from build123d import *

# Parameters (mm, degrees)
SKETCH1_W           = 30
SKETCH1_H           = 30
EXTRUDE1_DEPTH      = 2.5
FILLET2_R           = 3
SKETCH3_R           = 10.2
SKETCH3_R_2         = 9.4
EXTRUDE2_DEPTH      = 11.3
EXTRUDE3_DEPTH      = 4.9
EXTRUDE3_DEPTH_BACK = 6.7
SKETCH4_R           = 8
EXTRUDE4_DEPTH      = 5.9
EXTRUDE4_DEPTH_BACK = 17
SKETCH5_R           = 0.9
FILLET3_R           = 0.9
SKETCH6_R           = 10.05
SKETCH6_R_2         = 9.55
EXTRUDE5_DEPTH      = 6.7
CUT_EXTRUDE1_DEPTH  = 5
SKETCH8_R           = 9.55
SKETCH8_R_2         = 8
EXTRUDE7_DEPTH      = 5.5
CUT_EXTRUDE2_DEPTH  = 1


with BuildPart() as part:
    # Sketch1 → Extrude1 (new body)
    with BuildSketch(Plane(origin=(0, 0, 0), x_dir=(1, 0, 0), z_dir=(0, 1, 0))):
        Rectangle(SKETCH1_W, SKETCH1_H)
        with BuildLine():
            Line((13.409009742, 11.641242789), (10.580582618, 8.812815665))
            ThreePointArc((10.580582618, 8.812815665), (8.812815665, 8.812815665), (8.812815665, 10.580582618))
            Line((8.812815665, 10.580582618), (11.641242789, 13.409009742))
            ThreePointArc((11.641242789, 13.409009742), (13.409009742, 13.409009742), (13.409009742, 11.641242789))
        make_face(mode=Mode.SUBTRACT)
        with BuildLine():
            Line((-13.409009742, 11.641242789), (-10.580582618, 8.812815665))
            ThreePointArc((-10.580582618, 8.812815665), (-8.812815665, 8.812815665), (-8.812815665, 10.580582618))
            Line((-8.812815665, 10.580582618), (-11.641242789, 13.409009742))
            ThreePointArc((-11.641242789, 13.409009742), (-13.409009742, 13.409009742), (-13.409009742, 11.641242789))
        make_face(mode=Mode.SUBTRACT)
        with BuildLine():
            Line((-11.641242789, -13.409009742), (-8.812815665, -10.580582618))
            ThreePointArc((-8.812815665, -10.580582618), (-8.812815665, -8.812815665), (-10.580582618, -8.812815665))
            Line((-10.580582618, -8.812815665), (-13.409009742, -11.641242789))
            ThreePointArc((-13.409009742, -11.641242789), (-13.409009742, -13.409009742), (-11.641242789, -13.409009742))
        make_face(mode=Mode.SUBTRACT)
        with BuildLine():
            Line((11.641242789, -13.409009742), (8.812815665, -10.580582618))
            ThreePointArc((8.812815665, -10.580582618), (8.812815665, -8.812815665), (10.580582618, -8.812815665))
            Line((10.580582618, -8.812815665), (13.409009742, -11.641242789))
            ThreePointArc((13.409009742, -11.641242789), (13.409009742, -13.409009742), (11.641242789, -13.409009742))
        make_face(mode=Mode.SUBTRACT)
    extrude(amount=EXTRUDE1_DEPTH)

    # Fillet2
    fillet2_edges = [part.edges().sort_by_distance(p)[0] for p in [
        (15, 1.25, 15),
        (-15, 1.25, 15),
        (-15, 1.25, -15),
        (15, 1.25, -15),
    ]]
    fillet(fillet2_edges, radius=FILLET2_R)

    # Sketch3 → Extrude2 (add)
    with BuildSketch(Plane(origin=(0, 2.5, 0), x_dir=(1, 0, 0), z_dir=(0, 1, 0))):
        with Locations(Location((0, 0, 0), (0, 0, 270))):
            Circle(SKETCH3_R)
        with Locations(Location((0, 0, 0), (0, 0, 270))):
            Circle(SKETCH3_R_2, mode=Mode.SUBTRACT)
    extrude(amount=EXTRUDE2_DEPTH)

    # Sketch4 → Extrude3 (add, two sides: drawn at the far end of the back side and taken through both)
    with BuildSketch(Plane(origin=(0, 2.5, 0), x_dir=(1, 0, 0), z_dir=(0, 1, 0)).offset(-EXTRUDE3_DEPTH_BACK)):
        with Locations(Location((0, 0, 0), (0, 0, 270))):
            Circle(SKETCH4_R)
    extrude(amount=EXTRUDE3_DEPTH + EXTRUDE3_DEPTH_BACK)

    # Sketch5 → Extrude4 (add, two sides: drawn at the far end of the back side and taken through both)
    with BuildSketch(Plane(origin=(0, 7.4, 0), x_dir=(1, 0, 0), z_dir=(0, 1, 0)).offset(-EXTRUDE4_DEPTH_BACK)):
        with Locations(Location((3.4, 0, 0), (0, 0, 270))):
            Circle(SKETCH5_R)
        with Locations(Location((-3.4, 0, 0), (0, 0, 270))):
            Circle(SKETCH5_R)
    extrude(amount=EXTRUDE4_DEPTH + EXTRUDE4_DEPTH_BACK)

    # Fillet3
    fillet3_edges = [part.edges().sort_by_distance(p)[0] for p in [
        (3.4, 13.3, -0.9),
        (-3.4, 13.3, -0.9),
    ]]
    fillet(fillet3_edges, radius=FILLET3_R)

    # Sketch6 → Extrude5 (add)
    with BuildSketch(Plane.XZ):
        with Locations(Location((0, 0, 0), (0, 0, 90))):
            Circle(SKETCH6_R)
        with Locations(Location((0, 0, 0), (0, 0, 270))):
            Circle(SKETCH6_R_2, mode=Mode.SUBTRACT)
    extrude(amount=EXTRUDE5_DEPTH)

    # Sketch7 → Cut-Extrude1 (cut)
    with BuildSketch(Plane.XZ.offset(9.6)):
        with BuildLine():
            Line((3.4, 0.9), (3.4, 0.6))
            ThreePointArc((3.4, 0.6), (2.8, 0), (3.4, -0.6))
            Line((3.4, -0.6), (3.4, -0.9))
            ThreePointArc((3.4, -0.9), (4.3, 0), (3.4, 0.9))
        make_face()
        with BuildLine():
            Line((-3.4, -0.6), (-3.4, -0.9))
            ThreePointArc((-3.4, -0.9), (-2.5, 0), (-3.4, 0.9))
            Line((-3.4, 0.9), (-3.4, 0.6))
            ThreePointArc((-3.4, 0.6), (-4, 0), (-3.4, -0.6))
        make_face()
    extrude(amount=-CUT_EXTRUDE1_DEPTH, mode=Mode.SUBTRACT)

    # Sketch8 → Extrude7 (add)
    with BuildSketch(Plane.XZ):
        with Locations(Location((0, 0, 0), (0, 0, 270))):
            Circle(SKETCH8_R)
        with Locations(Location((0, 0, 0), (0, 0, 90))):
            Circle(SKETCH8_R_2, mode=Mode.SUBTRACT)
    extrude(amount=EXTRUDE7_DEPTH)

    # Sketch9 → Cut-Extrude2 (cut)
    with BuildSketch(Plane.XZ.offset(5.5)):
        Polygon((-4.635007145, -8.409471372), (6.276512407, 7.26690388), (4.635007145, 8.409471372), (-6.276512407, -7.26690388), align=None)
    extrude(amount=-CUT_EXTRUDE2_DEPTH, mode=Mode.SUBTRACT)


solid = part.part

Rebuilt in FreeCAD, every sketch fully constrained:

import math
import FreeCAD as App
import Part
import Sketcher
Q = App.Units.Quantity


def edges_at(feature, points):
    """Names of the edges that pass closest to the given points."""
    edges = feature.Shape.Edges
    near = lambda p: min(range(len(edges)), key=lambda i: edges[i].distToShape(Part.Vertex(*p))[0])
    return sorted({f"Edge{near(p) + 1}" for p in points})


def add_polygon(sketch, points):
    """Adds a closed chain of lines whose ends are joined by coincident constraints."""
    first, n = sketch.GeometryCount, len(points)
    for a, b in zip(points, points[1:] + points[:1]):
        sketch.addGeometry(Part.LineSegment(App.Vector(*a, 0), App.Vector(*b, 0)), False)
    for i in range(n):
        sketch.addConstraint(Sketcher.Constraint("Coincident", first + i, 2, first + (i + 1) % n, 1))

doc = App.newDocument("Part")
params = doc.addObject("Spreadsheet::Sheet", "Params")
for row, (alias, value) in enumerate([
    ("sketch1_width", "30 mm"),
    ("sketch1_radius", "1.25 mm"),
    ("sketch1_length", "4 mm"),
    ("pad1_length", "2.5 mm"),
    ("fillet_radius", "3 mm"),
    ("sketch2_diameter", "20.4 mm"),
    ("sketch2_diameter2", "18.8 mm"),
    ("pad2_length", "11.3 mm"),
    ("sketch3_diameter", "16 mm"),
    ("pad3_length", "4.9 mm"),
    ("pad3_length2", "6.7 mm"),
    ("sketch4_diameter", "1.8 mm"),
    ("pad4_length", "5.9 mm"),
    ("pad4_length2", "17 mm"),
    ("fillet2_radius", "0.9 mm"),
    ("sketch5_diameter", "20.1 mm"),
    ("sketch5_diameter2", "19.1 mm"),
    ("pad5_length", "6.7 mm"),
    ("sketch6_radius", "0.6 mm"),
    ("sketch6_radius2", "0.9 mm"),
    ("pocket1_length", "5 mm"),
    ("sketch7_diameter", "16 mm"),
    ("sketch7_diameter2", "19.1 mm"),
    ("pad6_length", "5.5 mm"),
    ("sketch8_length", "2 mm"),
    ("sketch8_length2", "19.1 mm"),
    ("pocket2_length", "1 mm"),
], start=1):
    params.set(f"A{row}", alias)
    params.set(f"B{row}", "=" + value)
    params.setAlias(f"B{row}", alias)

body = doc.addObject("PartDesign::Body", "Body")

sketch1 = body.newObject("Sketcher::SketchObject", "Sketch")
sketch1.AttachmentSupport = (doc.getObject("XZ_Plane"), [""])
sketch1.MapMode = "FlatFace"
add_polygon(sketch1, [(-15, -15), (-15, 15), (15, 15), (15, -15)])
sketch1.addGeometry(Part.LineSegment(App.Vector(-8.812816, 10.580583, 0), App.Vector(-11.641243, 13.40901, 0)), False)
sketch1.addGeometry(Part.ArcOfCircle(Part.Circle(App.Vector(-12.525126, 12.525126, 0), App.Vector(0, 0, 1), 1.25), math.radians(45), math.radians(225)), False)
sketch1.addGeometry(Part.LineSegment(App.Vector(-13.40901, 11.641243, 0), App.Vector(-10.580583, 8.812816, 0)), False)
sketch1.addGeometry(Part.ArcOfCircle(Part.Circle(App.Vector(-9.696699, 9.696699, 0), App.Vector(0, 0, 1), 1.25), math.radians(-135), math.radians(45)), False)
sketch1.addGeometry(Part.ArcOfCircle(Part.Circle(App.Vector(12.525126, 12.525126, 0), App.Vector(0, 0, 1), 1.25), math.radians(-45), math.radians(135)), False)
sketch1.addGeometry(Part.LineSegment(App.Vector(11.641243, 13.40901, 0), App.Vector(8.812816, 10.580583, 0)), False)
sketch1.addGeometry(Part.ArcOfCircle(Part.Circle(App.Vector(9.696699, 9.696699, 0), App.Vector(0, 0, 1), 1.25), math.radians(135), math.radians(315)), False)
sketch1.addGeometry(Part.LineSegment(App.Vector(10.580583, 8.812816, 0), App.Vector(13.40901, 11.641243, 0)), False)
sketch1.addGeometry(Part.LineSegment(App.Vector(-10.580583, -8.812816, 0), App.Vector(-13.40901, -11.641243, 0)), False)
sketch1.addGeometry(Part.ArcOfCircle(Part.Circle(App.Vector(-12.525126, -12.525126, 0), App.Vector(0, 0, 1), 1.25), math.radians(135), math.radians(315)), False)
sketch1.addGeometry(Part.LineSegment(App.Vector(-11.641243, -13.40901, 0), App.Vector(-8.812816, -10.580583, 0)), False)
sketch1.addGeometry(Part.ArcOfCircle(Part.Circle(App.Vector(-9.696699, -9.696699, 0), App.Vector(0, 0, 1), 1.25), math.radians(-45), math.radians(135)), False)
sketch1.addGeometry(Part.ArcOfCircle(Part.Circle(App.Vector(12.525126, -12.525126, 0), App.Vector(0, 0, 1), 1.25), math.radians(-135), math.radians(45)), False)
sketch1.addGeometry(Part.LineSegment(App.Vector(13.40901, -11.641243, 0), App.Vector(10.580583, -8.812816, 0)), False)
sketch1.addGeometry(Part.ArcOfCircle(Part.Circle(App.Vector(9.696699, -9.696699, 0), App.Vector(0, 0, 1), 1.25), math.radians(45), math.radians(225)), False)
sketch1.addGeometry(Part.LineSegment(App.Vector(8.812816, -10.580583, 0), App.Vector(11.641243, -13.40901, 0)), False)
sketch1.addConstraint([
    Sketcher.Constraint("Tangent", 4, 2, 5, 1),
    Sketcher.Constraint("Tangent", 5, 2, 6, 1),
    Sketcher.Constraint("Tangent", 6, 2, 7, 1),
    Sketcher.Constraint("Tangent", 7, 2, 4, 1),
    Sketcher.Constraint("Tangent", 8, 2, 9, 1),
    Sketcher.Constraint("Tangent", 9, 2, 10, 1),
    Sketcher.Constraint("Tangent", 10, 2, 11, 1),
    Sketcher.Constraint("Tangent", 11, 2, 8, 1),
    Sketcher.Constraint("Tangent", 12, 2, 13, 1),
    Sketcher.Constraint("Tangent", 13, 2, 14, 1),
    Sketcher.Constraint("Tangent", 14, 2, 15, 1),
    Sketcher.Constraint("Tangent", 15, 2, 12, 1),
    Sketcher.Constraint("Tangent", 16, 2, 17, 1),
    Sketcher.Constraint("Tangent", 17, 2, 18, 1),
    Sketcher.Constraint("Tangent", 18, 2, 19, 1),
    Sketcher.Constraint("Tangent", 19, 2, 16, 1),
    Sketcher.Constraint("Vertical", 0),
    Sketcher.Constraint("Horizontal", 1),
    Sketcher.Constraint("Vertical", 2),
    Sketcher.Constraint("Horizontal", 3),
    Sketcher.Constraint("Equal", 5, 7),
    Sketcher.Constraint("Equal", 7, 8),
    Sketcher.Constraint("Equal", 8, 10),
    Sketcher.Constraint("Equal", 10, 13),
    Sketcher.Constraint("Equal", 13, 15),
    Sketcher.Constraint("Equal", 15, 16),
    Sketcher.Constraint("Equal", 16, 18),
    Sketcher.Constraint("Symmetric", 8, 3, 13, 3, -1, 1),
    Sketcher.Constraint("Symmetric", 10, 3, 15, 3, -1, 1),
    Sketcher.Constraint("Symmetric", 5, 3, 16, 3, -1, 1),
    Sketcher.Constraint("Symmetric", 7, 3, 18, 3, -1, 1),
    Sketcher.Constraint("Symmetric", 0, 2, 2, 2, -1, 1),
    Sketcher.Constraint("Symmetric", 5, 3, 8, 3, -2),
    Sketcher.Constraint("Symmetric", 7, 3, 10, 3, -2),
    Sketcher.Constraint("Perpendicular", 6, 9),
    Sketcher.Constraint("Equal", 3, 0),
    Sketcher.Constraint("DistanceX", 1, 1, 1, 2, Q("30 mm")),
    Sketcher.Constraint("Radius", 5, Q("1.25 mm")),
    Sketcher.Constraint("Distance", 4, Q("4 mm")),
    Sketcher.Constraint("DistanceX", 7, 3, -1, 1, Q("9.696699 mm")),
    Sketcher.Constraint("DistanceY", -1, 1, 7, 3, Q("9.696699 mm")),
])
sketch1.setExpression("Constraints[40]", "Params.sketch1_width")
sketch1.setExpression("Constraints[41]", "Params.sketch1_radius")
sketch1.setExpression("Constraints[42]", "Params.sketch1_length")
pad1 = body.newObject("PartDesign::Pad", "Pad")
pad1.Profile = sketch1
pad1.setExpression("Length", "Params.pad1_length")
pad1.Reversed = True
doc.recompute()

fillet = body.newObject("PartDesign::Fillet", "Fillet")
fillet.Base = (pad1, edges_at(pad1, [
    (15, 1.25, 15),
    (-15, 1.25, 15),
    (-15, 1.25, -15),
    (15, 1.25, -15),
]))
fillet.setExpression("Radius", "Params.fillet_radius")

sketch2 = body.newObject("Sketcher::SketchObject", "Sketch001")
sketch2.AttachmentSupport = (doc.getObject("XZ_Plane"), [""])
sketch2.MapMode = "FlatFace"
sketch2.AttachmentOffset = App.Placement(App.Vector(0, 0, -2.5), App.Rotation())
sketch2.addGeometry([
    Part.Circle(App.Vector(0, 0, 0), App.Vector(0, 0, 1), 10.2),
    Part.Circle(App.Vector(0, 0, 0), App.Vector(0, 0, 1), 9.4),
], False)
sketch2.addConstraint([
    Sketcher.Constraint("Coincident", 0, 3, -1, 1),
    Sketcher.Constraint("Coincident", 1, 3, -1, 1),
    Sketcher.Constraint("Diameter", 0, Q("20.4 mm")),
    Sketcher.Constraint("Diameter", 1, Q("18.8 mm")),
])
sketch2.setExpression("Constraints[2]", "Params.sketch2_diameter")
sketch2.setExpression("Constraints[3]", "Params.sketch2_diameter2")
pad2 = body.newObject("PartDesign::Pad", "Pad001")
pad2.Profile = sketch2
pad2.setExpression("Length", "Params.pad2_length")
pad2.Reversed = True

sketch3 = body.newObject("Sketcher::SketchObject", "Sketch002")
sketch3.AttachmentSupport = (doc.getObject("XZ_Plane"), [""])
sketch3.MapMode = "FlatFace"
sketch3.AttachmentOffset = App.Placement(App.Vector(0, 0, -2.5), App.Rotation())
sketch3.addGeometry(Part.Circle(App.Vector(0, 0, 0), App.Vector(0, 0, 1), 8), False)
sketch3.addConstraint([
    Sketcher.Constraint("Coincident", 0, 3, -1, 1),
    Sketcher.Constraint("Diameter", 0, Q("16 mm")),
])
sketch3.setExpression("Constraints[1]", "Params.sketch3_diameter")
pad3 = body.newObject("PartDesign::Pad", "Pad002")
pad3.Profile = sketch3
pad3.Type = "TwoLengths"
pad3.setExpression("Length", "Params.pad3_length")
pad3.setExpression("Length2", "Params.pad3_length2")
pad3.Reversed = True

sketch4 = body.newObject("Sketcher::SketchObject", "Sketch003")
sketch4.AttachmentSupport = (doc.getObject("XZ_Plane"), [""])
sketch4.MapMode = "FlatFace"
sketch4.AttachmentOffset = App.Placement(App.Vector(0, 0, -7.4), App.Rotation())
sketch4.addGeometry([
    Part.Circle(App.Vector(3.4, 0, 0), App.Vector(0, 0, 1), 0.9),
    Part.Circle(App.Vector(-3.4, 0, 0), App.Vector(0, 0, 1), 0.9),
], False)
sketch4.addConstraint([
    Sketcher.Constraint("Equal", 0, 1),
    Sketcher.Constraint("Symmetric", 0, 3, 1, 3, -1, 1),
    Sketcher.Constraint("PointOnObject", 0, 3, -1),
    Sketcher.Constraint("Diameter", 0, Q("1.8 mm")),
    Sketcher.Constraint("DistanceX", -1, 1, 0, 3, Q("3.4 mm")),
])
sketch4.setExpression("Constraints[3]", "Params.sketch4_diameter")
pad4 = body.newObject("PartDesign::Pad", "Pad003")
pad4.Profile = sketch4
pad4.Type = "TwoLengths"
pad4.setExpression("Length", "Params.pad4_length")
pad4.setExpression("Length2", "Params.pad4_length2")
pad4.Reversed = True
doc.recompute()

fillet2 = body.newObject("PartDesign::Fillet", "Fillet001")
fillet2.Base = (pad4, edges_at(pad4, [(3.4, 13.3, -0.9), (-3.4, 13.3, -0.9)]))
fillet2.setExpression("Radius", "Params.fillet2_radius")

sketch5 = body.newObject("Sketcher::SketchObject", "Sketch004")
sketch5.AttachmentSupport = (doc.getObject("XZ_Plane"), [""])
sketch5.MapMode = "FlatFace"
sketch5.addGeometry([
    Part.Circle(App.Vector(0, 0, 0), App.Vector(0, 0, 1), 10.05),
    Part.Circle(App.Vector(0, 0, 0), App.Vector(0, 0, 1), 9.55),
], False)
sketch5.addConstraint([
    Sketcher.Constraint("Coincident", 0, 3, -1, 1),
    Sketcher.Constraint("Coincident", 1, 3, -1, 1),
    Sketcher.Constraint("Diameter", 0, Q("20.1 mm")),
    Sketcher.Constraint("Diameter", 1, Q("19.1 mm")),
])
sketch5.setExpression("Constraints[2]", "Params.sketch5_diameter")
sketch5.setExpression("Constraints[3]", "Params.sketch5_diameter2")
pad5 = body.newObject("PartDesign::Pad", "Pad004")
pad5.Profile = sketch5
pad5.setExpression("Length", "Params.pad5_length")

sketch6 = body.newObject("Sketcher::SketchObject", "Sketch005")
sketch6.AttachmentSupport = (doc.getObject("XZ_Plane"), [""])
sketch6.MapMode = "FlatFace"
sketch6.AttachmentOffset = App.Placement(App.Vector(0, 0, 9.6), App.Rotation())
sketch6.addGeometry([
    Part.LineSegment(App.Vector(3.4, 0.9, 0), App.Vector(3.4, 0.6, 0)),
    Part.ArcOfCircle(Part.Circle(App.Vector(3.4, 0, 0), App.Vector(0, 0, 1), 0.6), math.radians(90), math.radians(270)),
    Part.LineSegment(App.Vector(3.4, -0.6, 0), App.Vector(3.4, -0.9, 0)),
    Part.ArcOfCircle(Part.Circle(App.Vector(3.4, 0, 0), App.Vector(0, 0, 1), 0.9), math.radians(-90), math.radians(90)),
    Part.LineSegment(App.Vector(-3.4, -0.6, 0), App.Vector(-3.4, -0.9, 0)),
    Part.ArcOfCircle(Part.Circle(App.Vector(-3.4, 0, 0), App.Vector(0, 0, 1), 0.9), math.radians(-90), math.radians(90)),
    Part.LineSegment(App.Vector(-3.4, 0.9, 0), App.Vector(-3.4, 0.6, 0)),
    Part.ArcOfCircle(Part.Circle(App.Vector(-3.4, 0, 0), App.Vector(0, 0, 1), 0.6), math.radians(90), math.radians(270)),
], False)
sketch6.addConstraint([
    Sketcher.Constraint("Coincident", 0, 2, 1, 1),
    Sketcher.Constraint("Coincident", 1, 2, 2, 1),
    Sketcher.Constraint("Coincident", 2, 2, 3, 1),
    Sketcher.Constraint("Coincident", 3, 2, 0, 1),
    Sketcher.Constraint("Coincident", 4, 2, 5, 1),
    Sketcher.Constraint("Coincident", 5, 2, 6, 1),
    Sketcher.Constraint("Coincident", 6, 2, 7, 1),
    Sketcher.Constraint("Coincident", 7, 2, 4, 1),
    Sketcher.Constraint("Vertical", 0),
    Sketcher.Constraint("Vertical", 2),
    Sketcher.Constraint("Vertical", 4),
    Sketcher.Constraint("Vertical", 6),
    Sketcher.Constraint("Coincident", 3, 3, 1, 3),
    Sketcher.Constraint("Coincident", 7, 3, 5, 3),
    Sketcher.Constraint("Equal", 3, 5),
    Sketcher.Constraint("Equal", 1, 7),
    Sketcher.Constraint("Symmetric", 1, 3, 5, 3, -1, 1),
    Sketcher.Constraint("Symmetric", 2, 2, 4, 2, -2),
    Sketcher.Constraint("Vertical", 3, 3, 0, 2),
    Sketcher.Constraint("Vertical", 0, 2, 1, 2),
    Sketcher.Constraint("Vertical", 4, 2, 5, 2),
    Sketcher.Constraint("Radius", 1, Q("0.6 mm")),
    Sketcher.Constraint("Radius", 3, Q("0.9 mm")),
    Sketcher.Constraint("DistanceX", -1, 1, 1, 3, Q("3.4 mm")),
])
sketch6.setExpression("Constraints[21]", "Params.sketch6_radius")
sketch6.setExpression("Constraints[22]", "Params.sketch6_radius2")
pocket1 = body.newObject("PartDesign::Pocket", "Pocket")
pocket1.Profile = sketch6
pocket1.setExpression("Length", "Params.pocket1_length")

sketch7 = body.newObject("Sketcher::SketchObject", "Sketch006")
sketch7.AttachmentSupport = (doc.getObject("XZ_Plane"), [""])
sketch7.MapMode = "FlatFace"
sketch7.addGeometry([
    Part.Circle(App.Vector(0, 0, 0), App.Vector(0, 0, 1), 9.55),
    Part.Circle(App.Vector(0, 0, 0), App.Vector(0, 0, 1), 8),
], False)
sketch7.addConstraint([
    Sketcher.Constraint("Coincident", 0, 3, -1, 1),
    Sketcher.Constraint("Coincident", 1, 3, -1, 1),
    Sketcher.Constraint("Diameter", 1, Q("16 mm")),
    Sketcher.Constraint("Diameter", 0, Q("19.1 mm")),
])
sketch7.setExpression("Constraints[2]", "Params.sketch7_diameter")
sketch7.setExpression("Constraints[3]", "Params.sketch7_diameter2")
pad6 = body.newObject("PartDesign::Pad", "Pad005")
pad6.Profile = sketch7
pad6.setExpression("Length", "Params.pad6_length")

sketch8 = body.newObject("Sketcher::SketchObject", "Sketch007")
sketch8.AttachmentSupport = (doc.getObject("XZ_Plane"), [""])
sketch8.MapMode = "FlatFace"
sketch8.AttachmentOffset = App.Placement(App.Vector(0, 0, 5.5), App.Rotation())
add_polygon(sketch8, [(-4.635007, -8.409471), (6.276512, 7.266904), (4.635007, 8.409471), (-6.276512, -7.266904)])
sketch8.addConstraint([
    Sketcher.Constraint("Symmetric", 0, 2, 2, 2, -1, 1),
    Sketcher.Constraint("Symmetric", 1, 2, 3, 2, -1, 1),
    Sketcher.Constraint("Perpendicular", 0, 1),
    Sketcher.Constraint("Distance", 1, Q("2 mm")),
    Sketcher.Constraint("Distance", 0, Q("19.1 mm")),
    Sketcher.Constraint("DistanceY", -1, 1, 1, 2, Q("8.409471 mm")),
])
sketch8.setExpression("Constraints[7]", "Params.sketch8_length")
sketch8.setExpression("Constraints[8]", "Params.sketch8_length2")
pocket2 = body.newObject("PartDesign::Pocket", "Pocket001")
pocket2.Profile = sketch8
pocket2.setExpression("Length", "Params.pocket2_length")

doc.recompute()
